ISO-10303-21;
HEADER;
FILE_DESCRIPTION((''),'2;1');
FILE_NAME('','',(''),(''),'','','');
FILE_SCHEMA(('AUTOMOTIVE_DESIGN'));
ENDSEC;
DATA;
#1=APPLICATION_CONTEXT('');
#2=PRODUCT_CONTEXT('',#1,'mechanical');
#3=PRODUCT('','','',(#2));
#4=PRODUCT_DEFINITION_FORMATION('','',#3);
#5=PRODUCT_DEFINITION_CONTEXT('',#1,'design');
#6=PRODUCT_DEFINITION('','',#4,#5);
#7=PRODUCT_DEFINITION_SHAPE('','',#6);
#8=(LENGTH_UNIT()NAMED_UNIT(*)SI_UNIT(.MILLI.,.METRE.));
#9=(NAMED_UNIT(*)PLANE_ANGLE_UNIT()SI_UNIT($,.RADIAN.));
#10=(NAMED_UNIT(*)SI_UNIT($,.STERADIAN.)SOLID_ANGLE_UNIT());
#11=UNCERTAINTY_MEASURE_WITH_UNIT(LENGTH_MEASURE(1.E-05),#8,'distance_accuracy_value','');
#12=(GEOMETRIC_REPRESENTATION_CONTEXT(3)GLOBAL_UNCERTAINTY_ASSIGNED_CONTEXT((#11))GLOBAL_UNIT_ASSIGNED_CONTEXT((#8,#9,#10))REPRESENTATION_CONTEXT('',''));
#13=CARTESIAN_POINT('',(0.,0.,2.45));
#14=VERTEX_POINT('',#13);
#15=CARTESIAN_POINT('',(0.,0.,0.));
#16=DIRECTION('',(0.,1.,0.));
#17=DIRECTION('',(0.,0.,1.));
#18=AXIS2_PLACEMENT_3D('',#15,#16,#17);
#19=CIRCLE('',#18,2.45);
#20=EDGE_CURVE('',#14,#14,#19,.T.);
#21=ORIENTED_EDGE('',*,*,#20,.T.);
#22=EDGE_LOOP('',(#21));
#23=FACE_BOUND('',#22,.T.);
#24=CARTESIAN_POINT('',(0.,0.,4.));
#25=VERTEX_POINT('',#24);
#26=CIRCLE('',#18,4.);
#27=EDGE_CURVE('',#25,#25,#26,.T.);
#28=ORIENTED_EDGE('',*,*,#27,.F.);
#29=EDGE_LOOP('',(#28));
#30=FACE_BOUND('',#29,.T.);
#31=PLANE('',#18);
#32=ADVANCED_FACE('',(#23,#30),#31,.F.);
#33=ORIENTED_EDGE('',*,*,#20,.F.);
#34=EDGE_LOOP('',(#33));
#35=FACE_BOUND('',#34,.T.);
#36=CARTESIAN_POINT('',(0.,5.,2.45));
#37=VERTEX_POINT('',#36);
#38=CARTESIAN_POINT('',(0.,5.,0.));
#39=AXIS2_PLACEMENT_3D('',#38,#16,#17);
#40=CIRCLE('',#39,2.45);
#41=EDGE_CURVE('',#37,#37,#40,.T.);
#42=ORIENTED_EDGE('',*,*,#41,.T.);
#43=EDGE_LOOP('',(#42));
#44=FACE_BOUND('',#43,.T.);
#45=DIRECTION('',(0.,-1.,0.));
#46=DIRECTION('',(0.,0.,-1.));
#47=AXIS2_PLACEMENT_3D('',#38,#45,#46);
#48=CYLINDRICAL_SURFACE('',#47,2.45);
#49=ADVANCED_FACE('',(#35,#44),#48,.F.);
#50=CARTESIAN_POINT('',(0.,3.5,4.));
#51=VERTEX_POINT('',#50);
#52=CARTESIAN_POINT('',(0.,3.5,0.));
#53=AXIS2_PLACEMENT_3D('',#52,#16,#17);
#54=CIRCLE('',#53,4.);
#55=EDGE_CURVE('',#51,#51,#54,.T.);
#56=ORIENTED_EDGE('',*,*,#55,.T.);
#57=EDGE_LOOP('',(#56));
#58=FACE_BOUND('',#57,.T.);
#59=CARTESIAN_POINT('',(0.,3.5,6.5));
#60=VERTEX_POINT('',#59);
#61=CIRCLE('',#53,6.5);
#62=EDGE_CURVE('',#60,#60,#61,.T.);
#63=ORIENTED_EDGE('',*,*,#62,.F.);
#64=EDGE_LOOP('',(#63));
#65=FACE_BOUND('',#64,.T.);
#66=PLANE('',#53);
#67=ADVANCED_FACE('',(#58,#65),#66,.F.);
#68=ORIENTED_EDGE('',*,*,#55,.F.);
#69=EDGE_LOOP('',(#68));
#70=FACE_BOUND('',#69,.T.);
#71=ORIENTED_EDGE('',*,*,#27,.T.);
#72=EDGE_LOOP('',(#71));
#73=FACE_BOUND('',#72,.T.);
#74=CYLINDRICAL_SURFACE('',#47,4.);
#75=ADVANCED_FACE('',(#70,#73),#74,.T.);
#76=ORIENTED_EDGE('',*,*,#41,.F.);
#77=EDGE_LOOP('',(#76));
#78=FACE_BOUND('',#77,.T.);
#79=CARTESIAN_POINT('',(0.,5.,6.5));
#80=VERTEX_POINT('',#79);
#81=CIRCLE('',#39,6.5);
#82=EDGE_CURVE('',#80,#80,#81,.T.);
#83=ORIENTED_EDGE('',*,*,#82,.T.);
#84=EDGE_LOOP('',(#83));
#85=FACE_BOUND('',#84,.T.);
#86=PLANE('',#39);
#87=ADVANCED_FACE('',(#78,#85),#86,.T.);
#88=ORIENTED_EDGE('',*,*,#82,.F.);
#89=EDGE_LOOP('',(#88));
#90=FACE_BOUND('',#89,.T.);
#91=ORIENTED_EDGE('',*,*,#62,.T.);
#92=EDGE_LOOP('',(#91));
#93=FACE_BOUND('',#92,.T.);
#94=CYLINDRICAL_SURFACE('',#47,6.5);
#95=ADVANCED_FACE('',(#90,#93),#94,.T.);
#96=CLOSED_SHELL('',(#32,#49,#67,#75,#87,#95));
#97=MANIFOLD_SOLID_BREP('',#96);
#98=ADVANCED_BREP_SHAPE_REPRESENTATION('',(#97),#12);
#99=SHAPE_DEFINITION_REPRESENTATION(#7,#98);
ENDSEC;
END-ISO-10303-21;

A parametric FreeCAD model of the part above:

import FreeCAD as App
import Part
import Sketcher
from FreeCAD import Vector

doc = App.newDocument("Part")
params = doc.addObject("Spreadsheet::Sheet", "Params")
for row, (alias, value) in enumerate([
    ("sketch1_diameter", "8 mm"),
    ("sketch1_diameter2", "4.9 mm"),
    ("pad1_length", "5 mm"),
    ("sketch2_diameter", "13 mm"),
    ("sketch2_diameter2", "8 mm"),
    ("pad2_length", "1.5 mm"),
], start=1):
    params.set(f"A{row}", alias)
    params.set(f"B{row}", "=" + value)
    params.setAlias(f"B{row}", alias)

body = doc.addObject("PartDesign::Body", "Body")

# Sketch on XZ plane
sketch1 = doc.addObject("Sketcher::SketchObject", "Sketch")
body.addObject(sketch1)
sketch1.AttachmentSupport = (doc.XZ_Plane, [""])
sketch1.MapMode = "FlatFace"
sketch1.addGeometry(Part.Circle(Vector(0, 0, 0), Vector(0, 0, 1), 4), False)
sketch1.addGeometry(Part.Circle(Vector(0, 0, 0), Vector(0, 0, 1), 2.5), False)
sketch1.addConstraint(Sketcher.Constraint("Coincident", 0, 3, -1, 1))
sketch1.addConstraint(Sketcher.Constraint("Coincident", 1, 3, -1, 1))
sketch1.addConstraint(Sketcher.Constraint("Diameter", 0, 8.0))
sketch1.addConstraint(Sketcher.Constraint("Diameter", 1, 4.9))
sketch1.setExpression("Constraints[2]", "Params.sketch1_diameter")
sketch1.setExpression("Constraints[3]", "Params.sketch1_diameter2")
pad1 = doc.addObject("PartDesign::Pad", "Pad")
body.addObject(pad1)
pad1.Profile = sketch1
pad1.setExpression("Length", "Params.pad1_length")
pad1.Reversed = True

# Sketch on XZ plane
sketch2 = doc.addObject("Sketcher::SketchObject", "Sketch001")
body.addObject(sketch2)
sketch2.AttachmentSupport = (doc.XZ_Plane, [""])
sketch2.MapMode = "FlatFace"
sketch2.AttachmentOffset = App.Placement(Vector(0, 0, -3.5), App.Rotation())
sketch2.addGeometry(Part.Circle(Vector(0, 0, 0), Vector(0, 0, 1), 6.5), False)
sketch2.addGeometry(Part.Circle(Vector(0, 0, 0), Vector(0, 0, 1), 4), False)
sketch2.addConstraint(Sketcher.Constraint("Coincident", 0, 3, -1, 1))
sketch2.addConstraint(Sketcher.Constraint("Coincident", 1, 3, -1, 1))
sketch2.addConstraint(Sketcher.Constraint("Diameter", 0, 13.0))
sketch2.addConstraint(Sketcher.Constraint("Diameter", 1, 8.0))
sketch2.setExpression("Constraints[2]", "Params.sketch2_diameter")
sketch2.setExpression("Constraints[3]", "Params.sketch2_diameter2")
pad2 = doc.addObject("PartDesign::Pad", "Pad001")
body.addObject(pad2)
pad2.Profile = sketch2
pad2.setExpression("Length", "Params.pad2_length")
pad2.Reversed = True

doc.recompute()
